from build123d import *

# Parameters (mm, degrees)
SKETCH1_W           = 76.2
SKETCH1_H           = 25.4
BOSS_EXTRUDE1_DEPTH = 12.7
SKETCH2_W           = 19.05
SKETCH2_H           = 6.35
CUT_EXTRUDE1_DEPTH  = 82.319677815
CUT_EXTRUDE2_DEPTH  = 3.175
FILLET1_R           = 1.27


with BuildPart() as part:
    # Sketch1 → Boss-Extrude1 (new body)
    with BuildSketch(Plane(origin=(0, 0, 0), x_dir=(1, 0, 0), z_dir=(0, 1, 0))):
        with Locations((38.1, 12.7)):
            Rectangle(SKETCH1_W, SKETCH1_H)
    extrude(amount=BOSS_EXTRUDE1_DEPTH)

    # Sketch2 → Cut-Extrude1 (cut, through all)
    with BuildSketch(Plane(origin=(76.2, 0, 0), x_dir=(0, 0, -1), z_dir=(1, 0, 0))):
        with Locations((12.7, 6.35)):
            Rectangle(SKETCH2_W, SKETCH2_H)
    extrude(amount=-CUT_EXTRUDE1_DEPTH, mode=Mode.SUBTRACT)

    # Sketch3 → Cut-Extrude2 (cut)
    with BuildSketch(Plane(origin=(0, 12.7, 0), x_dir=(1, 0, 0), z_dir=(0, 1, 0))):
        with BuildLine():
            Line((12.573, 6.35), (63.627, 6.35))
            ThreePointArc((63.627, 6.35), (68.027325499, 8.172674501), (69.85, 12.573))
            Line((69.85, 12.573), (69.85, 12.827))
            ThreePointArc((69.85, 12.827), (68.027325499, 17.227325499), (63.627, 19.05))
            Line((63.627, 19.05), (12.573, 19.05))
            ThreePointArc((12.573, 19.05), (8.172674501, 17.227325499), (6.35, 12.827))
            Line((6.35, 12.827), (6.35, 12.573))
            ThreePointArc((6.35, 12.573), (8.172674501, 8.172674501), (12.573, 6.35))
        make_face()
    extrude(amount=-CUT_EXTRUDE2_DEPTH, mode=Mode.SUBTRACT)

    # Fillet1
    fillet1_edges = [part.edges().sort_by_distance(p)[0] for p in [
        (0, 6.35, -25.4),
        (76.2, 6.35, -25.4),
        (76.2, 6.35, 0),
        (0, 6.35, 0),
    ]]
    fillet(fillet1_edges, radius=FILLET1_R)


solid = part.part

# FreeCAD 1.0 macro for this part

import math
import FreeCAD as App
import Part
import Sketcher
from FreeCAD import Vector
Q = App.Units.Quantity


def edges_at(feature, points):
    """Names of the edges that pass closest to the given points."""
    edges = feature.Shape.Edges
    near = lambda p: min(range(len(edges)), key=lambda i: edges[i].distToShape(Part.Vertex(*p))[0])
    return sorted({f"Edge{near(p) + 1}" for p in points})


def add_polygon(sketch, points):
    """Adds a closed chain of lines whose ends are joined by coincident constraints."""
    first, n = sketch.GeometryCount, len(points)
    for a, b in zip(points, points[1:] + points[:1]):
        sketch.addGeometry(Part.LineSegment(App.Vector(*a, 0), App.Vector(*b, 0)), False)
    for i in range(n):
        sketch.addConstraint(Sketcher.Constraint("Coincident", first + i, 2, first + (i + 1) % n, 1))

doc = App.newDocument("Part")
body = doc.addObject("PartDesign::Body", "Body")

# Sketch on XZ plane
sketch1 = body.newObject("Sketcher::SketchObject", "Sketch")
sketch1.AttachmentSupport = (doc.getObject("XZ_Plane"), [""])
sketch1.MapMode = "FlatFace"
add_polygon(sketch1, [(0, -25), (0, 0), (76, 0), (76, -25)])  # lines 0-3
sketch1.addConstraint([
    Sketcher.Constraint("Vertical", 0),
    Sketcher.Constraint("Horizontal", 1),
    Sketcher.Constraint("Vertical", 2),
    Sketcher.Constraint("Horizontal", 3),
    Sketcher.Constraint("Coincident", 0, 2, -1, 1),
    Sketcher.Constraint("DistanceX", 1, 1, 1, 2, Q("3 in")),
    Sketcher.Constraint("DistanceY", 0, 1, 0, 2, Q("1 in")),
])
pad1 = body.newObject("PartDesign::Pad", "Pad")
pad1.Profile = sketch1
pad1.Length = Q("0.5 in")
pad1.Reversed = True

# Sketch on YZ plane
sketch2 = body.newObject("Sketcher::SketchObject", "Sketch001")
sketch2.AttachmentSupport = (doc.getObject("YZ_Plane"), [""])
sketch2.MapMode = "FlatFace"
sketch2.AttachmentOffset = App.Placement(Vector(0, 0, 3 * 25.4), App.Rotation())
add_polygon(sketch2, [(10, -3), (3, -3), (3, -22), (10, -22)])  # lines 0-3
sketch2.addConstraint([
    Sketcher.Constraint("Horizontal", 0),
    Sketcher.Constraint("Vertical", 1),
    Sketcher.Constraint("Horizontal", 2),
    Sketcher.Constraint("Vertical", 3),
    Sketcher.Constraint("DistanceX", 0, 2, 0, 1, Q("0.25 in")),
    Sketcher.Constraint("DistanceY", 1, 2, 1, 1, Q("0.75 in")),
    Sketcher.Constraint("DistanceX", -1, 1, 0, 2, Q("0.125 in")),
    Sketcher.Constraint("DistanceY", 0, 2, -1, 1, Q("0.125 in")),
])
pocket1 = body.newObject("PartDesign::Pocket", "Pocket")
pocket1.Profile = sketch2
pocket1.Type = "ThroughAll"

# Sketch on XZ plane
sketch3 = body.newObject("Sketcher::SketchObject", "Sketch002")
sketch3.AttachmentSupport = (doc.getObject("XZ_Plane"), [""])
sketch3.MapMode = "FlatFace"
sketch3.AttachmentOffset = App.Placement(Vector(0, 0, -0.5 * 25.4), App.Rotation())
sketch3.addGeometry([
    Part.LineSegment(Vector(12.57, -6.35, 0), Vector(63.63, -6.35, 0)),  # 0
    Part.ArcOfCircle(Part.Circle(Vector(63.63, -12.57, 0), Vector(0, 0, 1), 6.22), math.radians(0), math.radians(90)),  # 1
    Part.LineSegment(Vector(69.85, -12.57, 0), Vector(69.85, -12.83, 0)),  # 2
    Part.ArcOfCircle(Part.Circle(Vector(63.63, -12.83, 0), Vector(0, 0, 1), 6.22), math.radians(-90), math.radians(0)),  # 3
    Part.LineSegment(Vector(63.63, -19.05, 0), Vector(12.57, -19.05, 0)),  # 4
    Part.ArcOfCircle(Part.Circle(Vector(12.57, -12.83, 0), Vector(0, 0, 1), 6.22), math.radians(-180), math.radians(-90)),  # 5
    Part.LineSegment(Vector(6.35, -12.83, 0), Vector(6.35, -12.57, 0)),  # 6
    Part.ArcOfCircle(Part.Circle(Vector(12.57, -12.57, 0), Vector(0, 0, 1), 6.22), math.radians(90), math.radians(180)),  # 7
], False)
sketch3.addConstraint([
    Sketcher.Constraint("Tangent", 0, 2, 1, 2),
    Sketcher.Constraint("Tangent", 1, 1, 2, 1),
    Sketcher.Constraint("Tangent", 2, 2, 3, 2),
    Sketcher.Constraint("Tangent", 3, 1, 4, 1),
    Sketcher.Constraint("Tangent", 4, 2, 5, 2),
    Sketcher.Constraint("Tangent", 5, 1, 6, 1),
    Sketcher.Constraint("Tangent", 6, 2, 7, 2),
    Sketcher.Constraint("Tangent", 7, 1, 0, 1),
    Sketcher.Constraint("Horizontal", 0),
    Sketcher.Constraint("Vertical", 2),
    Sketcher.Constraint("Horizontal", 4),
    Sketcher.Constraint("Vertical", 6),
    Sketcher.Constraint("Equal", 1, 3),
    Sketcher.Constraint("Equal", 3, 5),
    Sketcher.Constraint("Equal", 5, 7),
    Sketcher.Constraint("Radius", 1, Q("0.245 in")),
    Sketcher.Constraint("DistanceX", 0, 1, 0, 2, Q("2.01 in")),
    Sketcher.Constraint("DistanceY", 2, 2, 2, 1, Q("0.01 in")),
    Sketcher.Constraint("DistanceY", 0, 2, -1, 1, Q("0.25 in")),
    Sketcher.Constraint("DistanceX", -1, 1, 1, 1, Q("2.75 in")),
])
pocket2 = body.newObject("PartDesign::Pocket", "Pocket001")
pocket2.Profile = sketch3
pocket2.Length = Q("0.125 in")
pocket2.Reversed = True
doc.recompute()

fillet = body.newObject("PartDesign::Fillet", "Fillet")
fillet.Base = (pocket2, edges_at(pocket2, [
    (0, 6.35, -25.4),
    (76.2, 6.35, -25.4),
    (76.2, 6.35, 0),
    (0, 6.35, 0),
]))
fillet.Radius = Q("0.05 in")

doc.recompute()
